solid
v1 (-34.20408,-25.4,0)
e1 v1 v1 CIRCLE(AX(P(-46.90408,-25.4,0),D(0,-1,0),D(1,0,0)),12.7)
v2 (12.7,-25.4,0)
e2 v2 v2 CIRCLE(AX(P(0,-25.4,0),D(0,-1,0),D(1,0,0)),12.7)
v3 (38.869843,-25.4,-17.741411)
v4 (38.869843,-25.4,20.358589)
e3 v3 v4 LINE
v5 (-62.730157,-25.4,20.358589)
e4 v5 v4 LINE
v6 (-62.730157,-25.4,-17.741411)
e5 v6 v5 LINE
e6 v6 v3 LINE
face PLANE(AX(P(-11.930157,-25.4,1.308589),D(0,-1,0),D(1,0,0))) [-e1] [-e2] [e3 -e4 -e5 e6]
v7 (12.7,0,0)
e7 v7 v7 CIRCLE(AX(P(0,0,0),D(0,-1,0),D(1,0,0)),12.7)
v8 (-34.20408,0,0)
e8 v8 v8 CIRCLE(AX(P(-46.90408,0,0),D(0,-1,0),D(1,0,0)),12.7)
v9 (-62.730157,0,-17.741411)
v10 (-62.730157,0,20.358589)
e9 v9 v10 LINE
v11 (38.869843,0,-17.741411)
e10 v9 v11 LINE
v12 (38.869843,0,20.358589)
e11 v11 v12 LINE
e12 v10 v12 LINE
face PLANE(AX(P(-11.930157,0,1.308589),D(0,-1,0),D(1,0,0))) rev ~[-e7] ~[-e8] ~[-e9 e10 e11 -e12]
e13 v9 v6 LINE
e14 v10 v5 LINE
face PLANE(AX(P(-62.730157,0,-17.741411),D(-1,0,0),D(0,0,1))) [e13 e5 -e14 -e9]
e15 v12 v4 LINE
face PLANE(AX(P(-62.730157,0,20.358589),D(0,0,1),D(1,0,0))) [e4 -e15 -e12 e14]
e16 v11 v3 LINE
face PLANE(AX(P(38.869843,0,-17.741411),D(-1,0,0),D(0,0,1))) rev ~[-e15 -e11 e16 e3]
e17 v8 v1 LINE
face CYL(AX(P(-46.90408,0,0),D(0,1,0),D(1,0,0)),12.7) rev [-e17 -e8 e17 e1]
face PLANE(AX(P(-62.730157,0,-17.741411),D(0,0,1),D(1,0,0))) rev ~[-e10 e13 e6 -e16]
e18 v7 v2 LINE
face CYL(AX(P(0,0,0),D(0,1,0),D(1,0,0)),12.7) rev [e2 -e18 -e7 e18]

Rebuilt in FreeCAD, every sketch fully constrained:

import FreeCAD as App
import Part
import Sketcher
from FreeCAD import Vector
Q = App.Units.Quantity


def add_polygon(sketch, points):
    """Adds a closed chain of lines whose ends are joined by coincident constraints."""
    first, n = sketch.GeometryCount, len(points)
    for a, b in zip(points, points[1:] + points[:1]):
        sketch.addGeometry(Part.LineSegment(App.Vector(*a, 0), App.Vector(*b, 0)), False)
    for i in range(n):
        sketch.addConstraint(Sketcher.Constraint("Coincident", first + i, 2, first + (i + 1) % n, 1))

doc = App.newDocument("Part")
params = doc.addObject("Spreadsheet::Sheet", "Params")
for row, (alias, value) in enumerate([
    ("sketch1_diameter", "1 in"),
    ("sketch1_width", "4 in"),
    ("sketch1_height", "1.5 in"),
    ("pad1_length", "1 in"),
], start=1):
    params.set(f"A{row}", alias)
    params.set(f"B{row}", "=" + value)
    params.setAlias(f"B{row}", alias)

body = doc.addObject("PartDesign::Body", "Body")

sketch1 = doc.addObject("Sketcher::SketchObject", "Sketch")
body.addObject(sketch1)
sketch1.AttachmentSupport = (doc.XZ_Plane, [""])
sketch1.MapMode = "FlatFace"
add_polygon(sketch1, [(-63, 20), (-63, -18), (39, -18), (39, 20)])
sketch1.addGeometry(Part.Circle(Vector(-47, 0, 0), Vector(0, 0, 1), 13), False)
sketch1.addGeometry(Part.Circle(Vector(0, 0, 0), Vector(0, 0, 1), 13), False)
sketch1.addConstraint([
    Sketcher.Constraint("Vertical", 0),
    Sketcher.Constraint("Horizontal", 1),
    Sketcher.Constraint("Vertical", 2),
    Sketcher.Constraint("Horizontal", 3),
    Sketcher.Constraint("Coincident", 5, 3, -1, 1),
    Sketcher.Constraint("Equal", 4, 5),
    Sketcher.Constraint("PointOnObject", 4, 3, -1),
    Sketcher.Constraint("Diameter", 4, Q("1 in")),
    Sketcher.Constraint("DistanceX", 1, 1, 1, 2, Q("4 in")),
    Sketcher.Constraint("DistanceY", 0, 2, 0, 1, Q("1.5 in")),
    Sketcher.Constraint("DistanceX", 4, 3, -1, 1, 46.90408),
    Sketcher.Constraint("DistanceY", 0, 2, -1, 1, 17.741411),
    Sketcher.Constraint("DistanceX", 0, 2, -1, 1, 62.730157),
])
sketch1.setExpression("Constraints[11]", "Params.sketch1_diameter")
sketch1.setExpression("Constraints[12]", "Params.sketch1_width")
sketch1.setExpression("Constraints[13]", "Params.sketch1_height")
pad1 = doc.addObject("PartDesign::Pad", "Pad")
body.addObject(pad1)
pad1.Profile = sketch1
pad1.setExpression("Length", "Params.pad1_length")

doc.recompute()
